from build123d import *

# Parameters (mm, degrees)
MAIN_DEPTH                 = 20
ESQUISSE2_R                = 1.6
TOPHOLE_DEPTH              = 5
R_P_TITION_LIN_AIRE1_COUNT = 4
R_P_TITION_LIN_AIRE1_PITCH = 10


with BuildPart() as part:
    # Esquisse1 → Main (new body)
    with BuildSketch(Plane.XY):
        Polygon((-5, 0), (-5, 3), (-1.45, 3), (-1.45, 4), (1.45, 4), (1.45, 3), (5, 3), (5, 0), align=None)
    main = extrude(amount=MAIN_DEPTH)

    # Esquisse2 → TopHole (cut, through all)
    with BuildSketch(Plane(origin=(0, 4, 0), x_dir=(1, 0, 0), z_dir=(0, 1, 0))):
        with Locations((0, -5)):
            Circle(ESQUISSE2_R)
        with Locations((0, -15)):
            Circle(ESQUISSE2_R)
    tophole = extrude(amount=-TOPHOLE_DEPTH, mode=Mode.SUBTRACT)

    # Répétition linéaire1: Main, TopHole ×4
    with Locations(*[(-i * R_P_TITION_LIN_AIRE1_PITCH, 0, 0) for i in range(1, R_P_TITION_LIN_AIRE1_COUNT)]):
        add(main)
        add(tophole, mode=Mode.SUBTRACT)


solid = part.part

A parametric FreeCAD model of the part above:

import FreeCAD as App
import Part
import Sketcher

V = App.Vector
Q = App.Units.Quantity


def add_polygon(sketch, points):
    """Adds a closed chain of lines whose ends are joined by coincident constraints."""
    first, n = sketch.GeometryCount, len(points)
    for a, b in zip(points, points[1:] + points[:1]):
        sketch.addGeometry(Part.LineSegment(App.Vector(*a, 0), App.Vector(*b, 0)), False)
    for i in range(n):
        sketch.addConstraint(Sketcher.Constraint("Coincident", first + i, 2, first + (i + 1) % n, 1))

doc = App.newDocument("Part")
body = doc.addObject("PartDesign::Body", "Body")

sketch1 = body.newObject("Sketcher::SketchObject", "Sketch")
sketch1.AttachmentSupport = (doc.getObject("XY_Plane"), [""])
sketch1.MapMode = "FlatFace"
add_polygon(sketch1, [(-5, 3), (-5, 0), (5, 0), (5, 3), (1.4, 3), (1.4, 4), (-1.4, 4), (-1.4, 3)])
sketch1.addConstraint(Sketcher.Constraint("Vertical", 0))
sketch1.addConstraint(Sketcher.Constraint("Horizontal", 1))
sketch1.addConstraint(Sketcher.Constraint("Vertical", 2))
sketch1.addConstraint(Sketcher.Constraint("Horizontal", 3))
sketch1.addConstraint(Sketcher.Constraint("Vertical", 4))
sketch1.addConstraint(Sketcher.Constraint("Horizontal", 5))
sketch1.addConstraint(Sketcher.Constraint("Vertical", 6))
sketch1.addConstraint(Sketcher.Constraint("Horizontal", 7))
sketch1.addConstraint(Sketcher.Constraint("Symmetric", 0, 2, 1, 2, -1, 1))
sketch1.addConstraint(Sketcher.Constraint("Symmetric", 3, 2, 6, 2, -2))
sketch1.addConstraint(Sketcher.Constraint("DistanceX", 1, 1, 1, 2, Q("10 mm")))
sketch1.addConstraint(Sketcher.Constraint("DistanceY", 0, 2, 0, 1, Q("3 mm")))
sketch1.addConstraint(Sketcher.Constraint("DistanceY", 4, 1, 4, 2, Q("1 mm")))
sketch1.addConstraint(Sketcher.Constraint("DistanceX", 5, 2, 5, 1, Q("2.9 mm")))
pad1 = body.newObject("PartDesign::Pad", "Pad")
pad1.Profile = sketch1
pad1.Length = 20

sketch2 = body.newObject("Sketcher::SketchObject", "Sketch001")
sketch2.AttachmentSupport = (doc.getObject("XZ_Plane"), [""])
sketch2.MapMode = "FlatFace"
sketch2.AttachmentOffset = App.Placement(V(0, 0, -4), App.Rotation())
sketch2.addGeometry(Part.Circle(V(0, 5, 0), V(0, 0, 1), 1.6), False)
sketch2.addGeometry(Part.Circle(V(0, 15, 0), V(0, 0, 1), 1.6), False)
sketch2.addConstraint(Sketcher.Constraint("Equal", 0, 1))
sketch2.addConstraint(Sketcher.Constraint("PointOnObject", 0, 3, -2))
sketch2.addConstraint(Sketcher.Constraint("PointOnObject", 1, 3, -2))
sketch2.addConstraint(Sketcher.Constraint("Diameter", 0, Q("3.2 mm")))
sketch2.addConstraint(Sketcher.Constraint("DistanceY", -1, 1, 0, 3, Q("5 mm")))
sketch2.addConstraint(Sketcher.Constraint("DistanceY", -1, 1, 1, 3, Q("15 mm")))
pocket1 = body.newObject("PartDesign::Pocket", "Pocket")
pocket1.Profile = sketch2
pocket1.Type = "ThroughAll"
pocket1.Reversed = True
doc.recompute()

linearpattern = body.newObject("PartDesign::LinearPattern", "LinearPattern")
linearpattern.Originals = [pad1, pocket1]
linearpattern.Direction = (doc.getObject("X_Axis"), [""])
linearpattern.Mode = "offset"
linearpattern.Offset = 10
linearpattern.Occurrences = 4
linearpattern.Reversed = True
body.Tip = linearpattern

doc.recompute()
